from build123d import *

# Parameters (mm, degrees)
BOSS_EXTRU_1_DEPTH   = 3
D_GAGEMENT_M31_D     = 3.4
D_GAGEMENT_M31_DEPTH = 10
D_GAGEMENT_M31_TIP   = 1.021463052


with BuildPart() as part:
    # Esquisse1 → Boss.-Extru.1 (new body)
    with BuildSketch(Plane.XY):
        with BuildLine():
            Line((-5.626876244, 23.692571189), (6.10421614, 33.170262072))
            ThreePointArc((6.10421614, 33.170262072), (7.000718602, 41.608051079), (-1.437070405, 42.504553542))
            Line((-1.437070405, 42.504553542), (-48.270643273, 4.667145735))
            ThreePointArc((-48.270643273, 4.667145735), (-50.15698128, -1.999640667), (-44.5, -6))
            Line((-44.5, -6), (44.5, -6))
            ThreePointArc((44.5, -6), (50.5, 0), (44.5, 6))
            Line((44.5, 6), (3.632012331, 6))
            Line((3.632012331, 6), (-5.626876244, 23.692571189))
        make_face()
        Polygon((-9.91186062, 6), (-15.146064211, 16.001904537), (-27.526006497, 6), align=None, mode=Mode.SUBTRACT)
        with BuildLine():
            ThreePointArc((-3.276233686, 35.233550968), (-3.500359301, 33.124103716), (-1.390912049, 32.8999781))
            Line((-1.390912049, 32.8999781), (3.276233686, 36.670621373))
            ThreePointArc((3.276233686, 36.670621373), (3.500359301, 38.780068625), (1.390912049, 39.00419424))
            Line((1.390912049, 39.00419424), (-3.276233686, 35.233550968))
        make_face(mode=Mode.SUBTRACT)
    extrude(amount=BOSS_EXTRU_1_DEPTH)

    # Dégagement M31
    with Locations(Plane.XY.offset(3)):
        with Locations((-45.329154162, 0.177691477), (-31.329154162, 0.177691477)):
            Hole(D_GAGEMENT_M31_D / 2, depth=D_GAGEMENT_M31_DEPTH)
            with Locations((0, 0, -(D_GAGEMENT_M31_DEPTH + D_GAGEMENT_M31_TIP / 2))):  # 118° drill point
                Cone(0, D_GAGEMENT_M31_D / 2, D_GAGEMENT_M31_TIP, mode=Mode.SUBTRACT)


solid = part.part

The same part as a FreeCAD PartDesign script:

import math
import FreeCAD as App
import Part
import Sketcher
from FreeCAD import Vector


def add_polygon(sketch, points):
    """Adds a closed chain of lines whose ends are joined by coincident constraints."""
    first, n = sketch.GeometryCount, len(points)
    for a, b in zip(points, points[1:] + points[:1]):
        sketch.addGeometry(Part.LineSegment(App.Vector(*a, 0), App.Vector(*b, 0)), False)
    for i in range(n):
        sketch.addConstraint(Sketcher.Constraint("Coincident", first + i, 2, first + (i + 1) % n, 1))

doc = App.newDocument("Part")
body = doc.addObject("PartDesign::Body", "Body")

# Sketch on XY plane
sketch1 = body.newObject("Sketcher::SketchObject", "Sketch")
sketch1.AttachmentSupport = (doc.getObject("XY_Plane"), [""])
sketch1.MapMode = "FlatFace"
sketch1.addGeometry(Part.LineSegment(Vector(-5.6, 23.7, 0), Vector(6.1, 33.2, 0)), False)  # 0
sketch1.addGeometry(Part.ArcOfCircle(Part.Circle(Vector(2.3, 37.8, 0), Vector(0, 0, 1), 6), math.radians(-51), math.radians(129)), False)  # 1
sketch1.addGeometry(Part.LineSegment(Vector(-1.4, 42.5, 0), Vector(-48.3, 4.7, 0)), False)  # 2
sketch1.addGeometry(Part.ArcOfCircle(Part.Circle(Vector(-44.5, 0, 0), Vector(0, 0, 1), 6), math.radians(129), math.radians(270)), False)  # 3
sketch1.addGeometry(Part.LineSegment(Vector(-44.5, -6, 0), Vector(44.5, -6, 0)), False)  # 4
sketch1.addGeometry(Part.ArcOfCircle(Part.Circle(Vector(44.5, 0, 0), Vector(0, 0, 1), 6), math.radians(-90), math.radians(90)), False)  # 5
sketch1.addGeometry(Part.LineSegment(Vector(44.5, 6, 0), Vector(3.6, 6, 0)), False)  # 6
sketch1.addGeometry(Part.LineSegment(Vector(3.6, 6, 0), Vector(-5.6, 23.7, 0)), False)  # 7
add_polygon(sketch1, [(-15.1, 16), (-9.9, 6), (-27.5, 6)])  # lines 8-10
sketch1.addGeometry(Part.ArcOfCircle(Part.Circle(Vector(-2.3, 34.1, 0), Vector(0, 0, 1), 1.5), math.radians(129), math.radians(309)), False)  # 11
sketch1.addGeometry(Part.LineSegment(Vector(-3.3, 35.2, 0), Vector(1.4, 39, 0)), False)  # 12
sketch1.addGeometry(Part.ArcOfCircle(Part.Circle(Vector(2.3, 37.8, 0), Vector(0, 0, 1), 1.5), math.radians(-51), math.radians(129)), False)  # 13
sketch1.addGeometry(Part.LineSegment(Vector(3.3, 36.7, 0), Vector(-1.4, 32.9, 0)), False)  # 14
sketch1.addConstraint(Sketcher.Constraint("Tangent", 0, 2, 1, 1))
sketch1.addConstraint(Sketcher.Constraint("Tangent", 1, 2, 2, 1))
sketch1.addConstraint(Sketcher.Constraint("Tangent", 2, 2, 3, 1))
sketch1.addConstraint(Sketcher.Constraint("Tangent", 3, 2, 4, 1))
sketch1.addConstraint(Sketcher.Constraint("Tangent", 4, 2, 5, 1))
sketch1.addConstraint(Sketcher.Constraint("Tangent", 5, 2, 6, 1))
sketch1.addConstraint(Sketcher.Constraint("Coincident", 6, 2, 7, 1))
sketch1.addConstraint(Sketcher.Constraint("Coincident", 7, 2, 0, 1))
sketch1.addConstraint(Sketcher.Constraint("Tangent", 11, 1, 12, 1))
sketch1.addConstraint(Sketcher.Constraint("Tangent", 12, 2, 13, 2))
sketch1.addConstraint(Sketcher.Constraint("Tangent", 13, 1, 14, 1))
sketch1.addConstraint(Sketcher.Constraint("Tangent", 14, 2, 11, 2))
sketch1.addConstraint(Sketcher.Constraint("Horizontal", 4))
sketch1.addConstraint(Sketcher.Constraint("Horizontal", 6))
sketch1.addConstraint(Sketcher.Constraint("Horizontal", 9))
sketch1.addConstraint(Sketcher.Constraint("Coincident", 13, 3, 1, 3))
sketch1.addConstraint(Sketcher.Constraint("Equal", 1, 3))
sketch1.addConstraint(Sketcher.Constraint("Equal", 3, 5))
sketch1.addConstraint(Sketcher.Constraint("Equal", 11, 13))
sketch1.addConstraint(Sketcher.Constraint("Symmetric", 3, 3, 5, 3, -1, 1))
sketch1.addConstraint(Sketcher.Constraint("Parallel", 0, 2))
sketch1.addConstraint(Sketcher.Constraint("Parallel", 7, 8))
sketch1.addConstraint(Sketcher.Constraint("Parallel", 2, 10))
sketch1.addConstraint(Sketcher.Constraint("Parallel", 10, 12))
sketch1.addConstraint(Sketcher.Constraint("Horizontal", 6, 2, 8, 2))
sketch1.addConstraint(Sketcher.Constraint("Radius", 1, 6.0))
sketch1.addConstraint(Sketcher.Constraint("Radius", 11, 1.5))
sketch1.addConstraint(Sketcher.Constraint("DistanceX", 4, 1, 4, 2, 89.0))
sketch1.addConstraint(Sketcher.Constraint("Distance", 12, 6.0))
sketch1.addConstraint(Sketcher.Constraint("Distance", 7, 19.968828))
sketch1.addConstraint(Sketcher.Constraint("Distance", 8, 11.28871))
sketch1.addConstraint(Sketcher.Constraint("DistanceX", 6, 2, 6, 1, 40.867988))
sketch1.addConstraint(Sketcher.Constraint("DistanceX", 9, 2, 9, 1, 17.614146))
sketch1.addConstraint(Sketcher.Constraint("DistanceX", 1, 2, -1, 1, 1.43707))
sketch1.addConstraint(Sketcher.Constraint("DistanceX", 8, 2, -1, 1, 9.911861))
pad1 = body.newObject("PartDesign::Pad", "Pad")
pad1.Profile = sketch1
pad1.Length = 3

# Sketch on XY plane
sketch2 = body.newObject("Sketcher::SketchObject", "Sketch001")
sketch2.AttachmentSupport = (doc.getObject("XY_Plane"), [""])
sketch2.MapMode = "FlatFace"
sketch2.AttachmentOffset = App.Placement(Vector(0, 0, 3), App.Rotation())
sketch2.addGeometry(Part.Circle(Vector(-45.3, 0.2, 0), Vector(0, 0, 1), 1.7), False)
sketch2.addGeometry(Part.Circle(Vector(-31.3, 0.2, 0), Vector(0, 0, 1), 1.7), False)
sketch2.addConstraint(Sketcher.Constraint("Equal", 0, 1))
sketch2.addConstraint(Sketcher.Constraint("Horizontal", 0, 3, 1, 3))
sketch2.addConstraint(Sketcher.Constraint("Diameter", 0, 3.4))
sketch2.addConstraint(Sketcher.Constraint("DistanceX", 0, 3, 1, 3, 14.0))
sketch2.addConstraint(Sketcher.Constraint("DistanceY", -1, 1, 0, 3, 0.177691))
sketch2.addConstraint(Sketcher.Constraint("DistanceX", 0, 3, -1, 1, 45.329154))
doc.recompute()
hole = body.newObject("PartDesign::Hole", "Hole")
hole.Profile = sketch2
hole.ThreadType = "None"
hole.Diameter = 3.4
hole.DepthType = "Dimension"
hole.Depth = 10
hole.DrillPoint = "Angled"
hole.DrillPointAngle = 118

doc.recompute()
